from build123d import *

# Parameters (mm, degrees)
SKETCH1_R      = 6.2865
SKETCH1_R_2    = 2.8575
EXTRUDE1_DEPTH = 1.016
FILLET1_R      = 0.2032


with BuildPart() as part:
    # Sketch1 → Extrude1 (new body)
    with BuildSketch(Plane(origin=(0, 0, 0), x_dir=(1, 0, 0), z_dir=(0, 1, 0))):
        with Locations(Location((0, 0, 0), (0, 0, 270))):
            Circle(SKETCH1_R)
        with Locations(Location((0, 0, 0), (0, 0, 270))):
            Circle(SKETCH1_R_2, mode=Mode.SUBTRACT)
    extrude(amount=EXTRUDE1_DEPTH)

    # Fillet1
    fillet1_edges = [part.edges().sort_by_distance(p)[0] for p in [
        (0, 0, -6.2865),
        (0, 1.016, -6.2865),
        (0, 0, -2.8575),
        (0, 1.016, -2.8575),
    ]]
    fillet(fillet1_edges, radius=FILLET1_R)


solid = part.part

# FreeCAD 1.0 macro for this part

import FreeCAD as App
import Part
import Sketcher

V = App.Vector
Q = App.Units.Quantity


def edges_at(feature, points):
    """Names of the edges that pass closest to the given points."""
    edges = feature.Shape.Edges
    near = lambda p: min(range(len(edges)), key=lambda i: edges[i].distToShape(Part.Vertex(*p))[0])
    return sorted({f"Edge{near(p) + 1}" for p in points})

doc = App.newDocument("Part")
body = doc.addObject("PartDesign::Body", "Body")

# Sketch on XZ plane
sketch1 = body.newObject("Sketcher::SketchObject", "Sketch")
sketch1.AttachmentSupport = (doc.getObject("XZ_Plane"), [""])
sketch1.MapMode = "FlatFace"
sketch1.addGeometry([
    Part.Circle(V(0, 0, 0), V(0, 0, 1), 6.3),
    Part.Circle(V(0, 0, 0), V(0, 0, 1), 2.9),
], False)
sketch1.addConstraint([
    Sketcher.Constraint("Coincident", 0, 3, -1, 1),
    Sketcher.Constraint("Coincident", 1, 3, -1, 1),
    Sketcher.Constraint("Diameter", 0, Q("0.495 in")),
    Sketcher.Constraint("Diameter", 1, Q("0.225 in")),
])
pad1 = body.newObject("PartDesign::Pad", "Pad")
pad1.Profile = sketch1
pad1.Length = Q("0.04 in")
pad1.Reversed = True
doc.recompute()

fillet = body.newObject("PartDesign::Fillet", "Fillet")
fillet.Base = (pad1, edges_at(pad1, [
    (0, 0, -6.287),
    (0, 1.016, -6.287),
    (0, 0, -2.857),
    (0, 1.016, -2.857),
]))
fillet.Radius = Q("0.008 in")

doc.recompute()
